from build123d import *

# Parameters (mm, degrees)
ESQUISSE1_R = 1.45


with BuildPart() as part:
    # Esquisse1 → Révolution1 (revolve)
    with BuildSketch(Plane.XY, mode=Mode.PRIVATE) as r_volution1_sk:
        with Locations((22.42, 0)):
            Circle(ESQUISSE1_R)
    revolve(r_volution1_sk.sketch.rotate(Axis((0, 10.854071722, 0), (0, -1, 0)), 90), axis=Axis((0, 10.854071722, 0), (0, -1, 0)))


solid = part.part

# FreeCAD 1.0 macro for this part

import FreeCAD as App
import Part
import Sketcher
from FreeCAD import Vector
Q = App.Units.Quantity

doc = App.newDocument("Part")
params = doc.addObject("Spreadsheet::Sheet", "Params")
for row, (alias, value) in enumerate([
    ("sketch1_diameter", "2.9 mm"),
    ("revolution_angle", "360 deg"),
], start=1):
    params.set(f"A{row}", alias)
    params.set(f"B{row}", "=" + value)
    params.setAlias(f"B{row}", alias)

body = doc.addObject("PartDesign::Body", "Body")

# Sketch on XY plane
sketch1 = body.newObject("Sketcher::SketchObject", "Sketch")
sketch1.AttachmentSupport = (doc.getObject("XY_Plane"), [""])
sketch1.MapMode = "FlatFace"
sketch1.addGeometry(Part.Circle(Vector(22.42, 0, 0), Vector(0, 0, 1), 1.45), False)
sketch1.addConstraint(Sketcher.Constraint("PointOnObject", 0, 3, -1))
sketch1.addConstraint(Sketcher.Constraint("Diameter", 0, Q("2.9 mm")))
sketch1.addConstraint(Sketcher.Constraint("DistanceX", -1, 1, 0, 3, Q("22.42 mm")))
sketch1.setExpression("Constraints[1]", "Params.sketch1_diameter")
revolution = body.newObject("PartDesign::Revolution", "Revolution")
revolution.Profile = sketch1
revolution.ReferenceAxis = (sketch1, ["V_Axis"])
revolution.setExpression("Angle", "Params.revolution_angle")

doc.recompute()
